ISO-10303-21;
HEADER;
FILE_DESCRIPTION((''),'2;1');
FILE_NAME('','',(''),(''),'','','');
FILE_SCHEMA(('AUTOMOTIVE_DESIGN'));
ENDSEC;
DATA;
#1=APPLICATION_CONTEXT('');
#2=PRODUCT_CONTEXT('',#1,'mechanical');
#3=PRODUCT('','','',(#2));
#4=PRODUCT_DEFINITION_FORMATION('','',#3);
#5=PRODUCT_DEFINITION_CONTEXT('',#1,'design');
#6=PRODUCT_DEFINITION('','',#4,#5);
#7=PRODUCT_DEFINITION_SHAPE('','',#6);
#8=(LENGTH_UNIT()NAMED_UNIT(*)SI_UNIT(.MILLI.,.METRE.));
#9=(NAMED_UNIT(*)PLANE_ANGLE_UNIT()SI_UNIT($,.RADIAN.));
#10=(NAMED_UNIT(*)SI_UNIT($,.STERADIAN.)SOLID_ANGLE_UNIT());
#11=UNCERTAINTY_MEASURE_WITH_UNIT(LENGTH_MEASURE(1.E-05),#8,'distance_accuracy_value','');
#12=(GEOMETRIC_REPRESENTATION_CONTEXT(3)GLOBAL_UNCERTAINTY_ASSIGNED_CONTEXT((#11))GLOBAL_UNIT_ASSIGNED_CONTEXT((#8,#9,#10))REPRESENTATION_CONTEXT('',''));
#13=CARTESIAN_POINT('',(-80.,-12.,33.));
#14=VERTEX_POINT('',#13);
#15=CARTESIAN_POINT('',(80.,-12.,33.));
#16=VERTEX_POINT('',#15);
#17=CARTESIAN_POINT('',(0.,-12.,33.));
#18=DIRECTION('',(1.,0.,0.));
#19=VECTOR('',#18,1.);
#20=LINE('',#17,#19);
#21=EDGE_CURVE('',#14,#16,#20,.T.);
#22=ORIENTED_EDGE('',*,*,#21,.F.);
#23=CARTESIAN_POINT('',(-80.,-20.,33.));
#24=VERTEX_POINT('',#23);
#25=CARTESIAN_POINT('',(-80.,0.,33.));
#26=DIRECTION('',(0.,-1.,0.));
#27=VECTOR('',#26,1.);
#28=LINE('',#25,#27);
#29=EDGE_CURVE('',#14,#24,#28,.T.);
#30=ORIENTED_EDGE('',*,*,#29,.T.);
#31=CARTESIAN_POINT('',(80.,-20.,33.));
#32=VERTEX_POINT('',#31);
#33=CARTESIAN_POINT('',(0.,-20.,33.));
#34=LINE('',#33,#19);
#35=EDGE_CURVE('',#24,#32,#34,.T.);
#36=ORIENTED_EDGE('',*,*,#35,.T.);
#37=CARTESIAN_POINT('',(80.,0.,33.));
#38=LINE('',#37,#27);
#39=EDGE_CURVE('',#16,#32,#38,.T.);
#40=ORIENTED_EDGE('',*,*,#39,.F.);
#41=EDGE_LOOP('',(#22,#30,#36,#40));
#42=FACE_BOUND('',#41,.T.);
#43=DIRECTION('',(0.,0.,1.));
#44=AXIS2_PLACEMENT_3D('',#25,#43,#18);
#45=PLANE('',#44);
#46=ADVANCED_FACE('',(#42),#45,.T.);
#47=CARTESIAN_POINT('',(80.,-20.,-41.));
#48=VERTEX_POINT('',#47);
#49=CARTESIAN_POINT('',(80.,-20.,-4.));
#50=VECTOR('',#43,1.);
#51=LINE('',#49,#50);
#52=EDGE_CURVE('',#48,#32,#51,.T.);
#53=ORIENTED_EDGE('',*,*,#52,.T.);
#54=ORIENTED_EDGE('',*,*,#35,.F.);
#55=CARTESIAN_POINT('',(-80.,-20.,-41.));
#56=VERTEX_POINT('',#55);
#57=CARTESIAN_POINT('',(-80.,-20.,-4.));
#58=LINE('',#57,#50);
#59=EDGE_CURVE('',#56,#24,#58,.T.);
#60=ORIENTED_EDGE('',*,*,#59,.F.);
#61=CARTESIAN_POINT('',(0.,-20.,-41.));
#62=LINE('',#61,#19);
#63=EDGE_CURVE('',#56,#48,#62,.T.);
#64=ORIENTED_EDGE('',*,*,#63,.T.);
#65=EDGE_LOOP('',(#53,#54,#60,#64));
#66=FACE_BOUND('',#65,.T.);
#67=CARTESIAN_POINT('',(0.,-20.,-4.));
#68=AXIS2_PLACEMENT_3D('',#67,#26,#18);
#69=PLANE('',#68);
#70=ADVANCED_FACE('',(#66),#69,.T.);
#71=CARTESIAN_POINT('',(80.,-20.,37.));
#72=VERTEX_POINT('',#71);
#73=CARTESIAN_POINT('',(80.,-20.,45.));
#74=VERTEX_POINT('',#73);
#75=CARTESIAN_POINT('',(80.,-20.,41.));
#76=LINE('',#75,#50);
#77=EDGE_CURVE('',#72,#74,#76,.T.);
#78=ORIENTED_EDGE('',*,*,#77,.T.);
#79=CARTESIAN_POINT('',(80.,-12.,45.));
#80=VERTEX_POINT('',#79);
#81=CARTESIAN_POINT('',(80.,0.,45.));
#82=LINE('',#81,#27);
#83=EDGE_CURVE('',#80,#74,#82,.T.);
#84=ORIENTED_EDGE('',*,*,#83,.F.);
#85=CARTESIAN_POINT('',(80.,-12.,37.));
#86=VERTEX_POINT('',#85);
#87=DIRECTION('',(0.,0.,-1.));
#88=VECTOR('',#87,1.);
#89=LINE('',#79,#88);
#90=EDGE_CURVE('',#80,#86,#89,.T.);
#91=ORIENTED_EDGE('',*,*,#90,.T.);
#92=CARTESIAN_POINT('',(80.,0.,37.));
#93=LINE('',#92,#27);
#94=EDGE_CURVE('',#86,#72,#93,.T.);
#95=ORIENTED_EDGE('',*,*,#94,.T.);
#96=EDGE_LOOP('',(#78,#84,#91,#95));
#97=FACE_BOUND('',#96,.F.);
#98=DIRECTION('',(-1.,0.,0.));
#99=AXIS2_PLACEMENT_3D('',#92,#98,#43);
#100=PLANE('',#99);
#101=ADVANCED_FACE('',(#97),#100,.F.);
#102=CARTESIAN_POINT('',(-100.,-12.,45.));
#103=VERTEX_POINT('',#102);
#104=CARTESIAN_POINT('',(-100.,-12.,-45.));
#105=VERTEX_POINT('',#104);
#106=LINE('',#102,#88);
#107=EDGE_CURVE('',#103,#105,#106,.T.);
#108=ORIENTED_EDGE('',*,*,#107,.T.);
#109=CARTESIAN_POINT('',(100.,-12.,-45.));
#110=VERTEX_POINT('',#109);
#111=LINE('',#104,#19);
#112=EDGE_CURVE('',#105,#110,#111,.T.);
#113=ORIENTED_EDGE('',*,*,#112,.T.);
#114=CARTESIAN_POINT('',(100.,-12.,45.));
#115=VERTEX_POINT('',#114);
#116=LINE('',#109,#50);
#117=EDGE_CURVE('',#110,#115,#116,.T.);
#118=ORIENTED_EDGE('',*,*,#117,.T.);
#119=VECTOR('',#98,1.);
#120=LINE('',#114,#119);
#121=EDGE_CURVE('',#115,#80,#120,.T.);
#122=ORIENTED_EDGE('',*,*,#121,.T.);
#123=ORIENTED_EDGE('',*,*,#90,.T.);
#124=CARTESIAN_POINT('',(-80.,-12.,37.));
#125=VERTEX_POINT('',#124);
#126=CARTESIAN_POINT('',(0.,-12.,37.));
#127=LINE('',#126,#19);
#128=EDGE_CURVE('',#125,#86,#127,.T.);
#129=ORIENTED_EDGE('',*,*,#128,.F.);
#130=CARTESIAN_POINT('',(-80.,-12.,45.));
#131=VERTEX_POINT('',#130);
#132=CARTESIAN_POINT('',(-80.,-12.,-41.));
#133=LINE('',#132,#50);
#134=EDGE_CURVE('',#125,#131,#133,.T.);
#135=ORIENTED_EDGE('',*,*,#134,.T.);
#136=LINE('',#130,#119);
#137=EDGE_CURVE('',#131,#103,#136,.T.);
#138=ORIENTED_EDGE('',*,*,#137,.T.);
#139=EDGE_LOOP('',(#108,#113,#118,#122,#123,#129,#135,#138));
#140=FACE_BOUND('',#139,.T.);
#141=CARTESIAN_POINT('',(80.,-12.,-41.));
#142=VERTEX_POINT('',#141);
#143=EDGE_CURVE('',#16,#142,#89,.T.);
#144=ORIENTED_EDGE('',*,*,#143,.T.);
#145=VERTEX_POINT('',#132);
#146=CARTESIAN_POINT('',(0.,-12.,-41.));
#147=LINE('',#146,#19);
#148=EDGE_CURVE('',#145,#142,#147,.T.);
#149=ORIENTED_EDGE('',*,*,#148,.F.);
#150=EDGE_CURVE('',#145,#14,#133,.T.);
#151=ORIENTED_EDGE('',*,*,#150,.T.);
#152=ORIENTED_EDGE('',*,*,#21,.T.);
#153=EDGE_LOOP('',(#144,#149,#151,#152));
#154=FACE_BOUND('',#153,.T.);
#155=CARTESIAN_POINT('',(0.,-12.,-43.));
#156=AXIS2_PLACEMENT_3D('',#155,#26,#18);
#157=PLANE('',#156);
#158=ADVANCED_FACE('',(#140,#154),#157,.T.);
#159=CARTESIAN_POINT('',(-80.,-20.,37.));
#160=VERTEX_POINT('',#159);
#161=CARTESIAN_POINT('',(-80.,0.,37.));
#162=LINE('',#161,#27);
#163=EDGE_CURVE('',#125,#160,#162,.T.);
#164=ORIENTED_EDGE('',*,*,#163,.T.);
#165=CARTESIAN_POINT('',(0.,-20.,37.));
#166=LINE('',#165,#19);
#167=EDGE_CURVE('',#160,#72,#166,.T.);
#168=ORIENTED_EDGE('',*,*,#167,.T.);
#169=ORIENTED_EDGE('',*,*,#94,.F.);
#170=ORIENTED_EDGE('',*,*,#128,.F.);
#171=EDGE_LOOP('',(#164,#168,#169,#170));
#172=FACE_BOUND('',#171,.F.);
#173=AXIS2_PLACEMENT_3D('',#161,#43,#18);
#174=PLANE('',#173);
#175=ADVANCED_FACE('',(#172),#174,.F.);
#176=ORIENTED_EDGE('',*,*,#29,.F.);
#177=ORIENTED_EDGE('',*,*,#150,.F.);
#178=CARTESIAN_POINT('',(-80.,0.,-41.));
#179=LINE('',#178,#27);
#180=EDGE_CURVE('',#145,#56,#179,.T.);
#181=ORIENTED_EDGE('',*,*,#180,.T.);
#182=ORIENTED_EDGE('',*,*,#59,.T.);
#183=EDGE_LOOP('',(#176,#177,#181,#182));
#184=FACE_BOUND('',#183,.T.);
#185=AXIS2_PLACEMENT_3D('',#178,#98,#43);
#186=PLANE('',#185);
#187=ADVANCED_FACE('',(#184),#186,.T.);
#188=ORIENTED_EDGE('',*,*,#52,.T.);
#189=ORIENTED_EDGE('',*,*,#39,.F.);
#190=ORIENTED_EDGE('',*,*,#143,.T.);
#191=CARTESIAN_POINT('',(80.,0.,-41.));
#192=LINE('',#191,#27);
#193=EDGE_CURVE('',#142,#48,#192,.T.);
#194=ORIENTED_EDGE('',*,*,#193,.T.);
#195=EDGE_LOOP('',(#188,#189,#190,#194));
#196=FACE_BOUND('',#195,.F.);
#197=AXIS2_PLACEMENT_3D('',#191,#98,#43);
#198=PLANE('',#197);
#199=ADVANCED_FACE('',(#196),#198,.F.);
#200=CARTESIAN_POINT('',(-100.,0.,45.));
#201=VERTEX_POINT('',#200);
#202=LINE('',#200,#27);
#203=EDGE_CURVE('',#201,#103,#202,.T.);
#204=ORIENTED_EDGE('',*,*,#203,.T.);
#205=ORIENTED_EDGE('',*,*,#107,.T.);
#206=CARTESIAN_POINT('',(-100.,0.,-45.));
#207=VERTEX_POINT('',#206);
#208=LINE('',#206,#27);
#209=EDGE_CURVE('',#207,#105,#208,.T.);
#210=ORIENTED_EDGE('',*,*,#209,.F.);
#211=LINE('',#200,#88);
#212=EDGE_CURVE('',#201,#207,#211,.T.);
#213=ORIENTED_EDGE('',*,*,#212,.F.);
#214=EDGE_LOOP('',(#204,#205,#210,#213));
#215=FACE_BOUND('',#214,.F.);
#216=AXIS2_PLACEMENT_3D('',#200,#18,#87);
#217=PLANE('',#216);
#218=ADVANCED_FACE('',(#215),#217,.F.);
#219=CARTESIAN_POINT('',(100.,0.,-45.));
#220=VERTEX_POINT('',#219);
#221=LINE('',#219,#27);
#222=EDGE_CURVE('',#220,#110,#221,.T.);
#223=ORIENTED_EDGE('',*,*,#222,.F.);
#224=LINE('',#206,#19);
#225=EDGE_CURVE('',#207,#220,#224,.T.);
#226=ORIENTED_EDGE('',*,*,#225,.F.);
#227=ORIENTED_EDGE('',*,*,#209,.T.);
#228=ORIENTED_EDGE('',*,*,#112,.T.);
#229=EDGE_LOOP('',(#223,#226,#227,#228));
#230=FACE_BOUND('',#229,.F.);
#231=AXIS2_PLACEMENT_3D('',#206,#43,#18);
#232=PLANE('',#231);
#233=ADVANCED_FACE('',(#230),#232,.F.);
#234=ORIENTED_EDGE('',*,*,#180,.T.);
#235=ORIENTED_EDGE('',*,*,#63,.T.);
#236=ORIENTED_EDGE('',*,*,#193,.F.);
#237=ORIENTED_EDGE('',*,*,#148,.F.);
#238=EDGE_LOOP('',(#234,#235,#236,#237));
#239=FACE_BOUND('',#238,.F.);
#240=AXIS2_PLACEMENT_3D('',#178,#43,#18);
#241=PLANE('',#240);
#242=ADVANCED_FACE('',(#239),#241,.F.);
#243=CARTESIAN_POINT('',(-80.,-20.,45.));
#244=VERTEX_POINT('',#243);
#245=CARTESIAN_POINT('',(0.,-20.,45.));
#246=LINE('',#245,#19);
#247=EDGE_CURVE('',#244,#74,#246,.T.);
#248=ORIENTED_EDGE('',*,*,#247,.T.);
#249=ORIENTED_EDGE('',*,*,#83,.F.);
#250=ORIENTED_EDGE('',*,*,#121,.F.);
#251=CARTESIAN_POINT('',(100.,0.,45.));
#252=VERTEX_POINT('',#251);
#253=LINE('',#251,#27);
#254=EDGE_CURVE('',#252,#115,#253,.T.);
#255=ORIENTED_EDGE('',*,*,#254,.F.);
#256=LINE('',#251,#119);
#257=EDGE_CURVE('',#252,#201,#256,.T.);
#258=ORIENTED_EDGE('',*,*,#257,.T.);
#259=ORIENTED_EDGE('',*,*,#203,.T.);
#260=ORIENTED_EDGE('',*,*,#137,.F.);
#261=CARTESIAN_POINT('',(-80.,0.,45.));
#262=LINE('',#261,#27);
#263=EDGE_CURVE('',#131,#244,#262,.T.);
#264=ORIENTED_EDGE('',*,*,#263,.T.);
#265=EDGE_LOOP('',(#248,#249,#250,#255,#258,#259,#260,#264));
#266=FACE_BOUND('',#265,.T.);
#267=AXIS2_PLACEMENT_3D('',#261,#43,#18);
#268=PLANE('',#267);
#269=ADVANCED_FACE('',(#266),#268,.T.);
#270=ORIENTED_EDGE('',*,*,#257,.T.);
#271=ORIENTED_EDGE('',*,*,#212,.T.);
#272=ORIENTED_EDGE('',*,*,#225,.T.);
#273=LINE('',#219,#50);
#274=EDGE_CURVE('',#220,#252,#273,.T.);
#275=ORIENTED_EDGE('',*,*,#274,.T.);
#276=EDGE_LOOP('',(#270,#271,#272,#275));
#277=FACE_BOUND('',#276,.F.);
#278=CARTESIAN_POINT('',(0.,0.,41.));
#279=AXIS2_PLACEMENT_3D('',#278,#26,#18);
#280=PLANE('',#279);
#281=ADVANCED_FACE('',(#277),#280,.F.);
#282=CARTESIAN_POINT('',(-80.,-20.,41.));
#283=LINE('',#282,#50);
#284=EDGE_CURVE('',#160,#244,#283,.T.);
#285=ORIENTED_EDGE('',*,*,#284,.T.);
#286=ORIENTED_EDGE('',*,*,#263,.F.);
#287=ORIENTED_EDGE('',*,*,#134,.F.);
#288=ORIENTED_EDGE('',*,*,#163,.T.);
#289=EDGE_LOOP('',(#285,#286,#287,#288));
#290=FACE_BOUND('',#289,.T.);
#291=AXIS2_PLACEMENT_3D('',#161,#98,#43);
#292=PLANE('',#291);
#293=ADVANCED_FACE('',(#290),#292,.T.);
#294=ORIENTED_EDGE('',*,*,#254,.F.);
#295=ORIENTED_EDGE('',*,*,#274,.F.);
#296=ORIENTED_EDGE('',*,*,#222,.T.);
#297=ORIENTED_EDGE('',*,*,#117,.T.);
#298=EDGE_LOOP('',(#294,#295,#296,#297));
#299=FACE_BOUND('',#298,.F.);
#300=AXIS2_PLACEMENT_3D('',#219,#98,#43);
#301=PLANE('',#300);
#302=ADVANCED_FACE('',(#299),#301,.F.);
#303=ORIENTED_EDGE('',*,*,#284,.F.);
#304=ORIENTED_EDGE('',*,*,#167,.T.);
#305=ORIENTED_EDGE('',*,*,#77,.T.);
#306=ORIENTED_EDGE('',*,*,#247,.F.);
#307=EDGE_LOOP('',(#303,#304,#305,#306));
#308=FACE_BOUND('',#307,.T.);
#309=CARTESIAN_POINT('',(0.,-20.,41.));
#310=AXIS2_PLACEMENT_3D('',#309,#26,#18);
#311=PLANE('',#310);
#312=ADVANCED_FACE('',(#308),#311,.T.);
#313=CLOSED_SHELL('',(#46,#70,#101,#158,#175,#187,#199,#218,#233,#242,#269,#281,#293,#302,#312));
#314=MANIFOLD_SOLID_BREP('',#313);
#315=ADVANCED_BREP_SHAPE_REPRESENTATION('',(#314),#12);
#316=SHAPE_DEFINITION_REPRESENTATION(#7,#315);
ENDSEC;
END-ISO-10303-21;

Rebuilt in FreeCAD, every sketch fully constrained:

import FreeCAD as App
import Part
import Sketcher

V = App.Vector


def add_polygon(sketch, points):
    """Adds a closed chain of lines whose ends are joined by coincident constraints."""
    first, n = sketch.GeometryCount, len(points)
    for a, b in zip(points, points[1:] + points[:1]):
        sketch.addGeometry(Part.LineSegment(App.Vector(*a, 0), App.Vector(*b, 0)), False)
    for i in range(n):
        sketch.addConstraint(Sketcher.Constraint("Coincident", first + i, 2, first + (i + 1) % n, 1))

doc = App.newDocument("Part")
body = doc.addObject("PartDesign::Body", "Body")

sketch1 = body.newObject("Sketcher::SketchObject", "Sketch")
sketch1.AttachmentSupport = (doc.getObject("XZ_Plane"), [""])
sketch1.MapMode = "FlatFace"
add_polygon(sketch1, [(100, -45), (100, 45), (80, 45), (80, 37), (-80, 37), (-80, 45), (-100, 45), (-100, -45)])
add_polygon(sketch1, [(80, 33), (80, -41), (-80, -41), (-80, 33)])
sketch1.addConstraint(Sketcher.Constraint("Vertical", 0))
sketch1.addConstraint(Sketcher.Constraint("Horizontal", 1))
sketch1.addConstraint(Sketcher.Constraint("Vertical", 2))
sketch1.addConstraint(Sketcher.Constraint("Horizontal", 3))
sketch1.addConstraint(Sketcher.Constraint("Vertical", 4))
sketch1.addConstraint(Sketcher.Constraint("Horizontal", 5))
sketch1.addConstraint(Sketcher.Constraint("Vertical", 6))
sketch1.addConstraint(Sketcher.Constraint("Horizontal", 7))
sketch1.addConstraint(Sketcher.Constraint("Vertical", 8))
sketch1.addConstraint(Sketcher.Constraint("Horizontal", 9))
sketch1.addConstraint(Sketcher.Constraint("Vertical", 10))
sketch1.addConstraint(Sketcher.Constraint("Horizontal", 11))
sketch1.addConstraint(Sketcher.Constraint("Symmetric", 0, 2, 6, 2, -1, 1))
sketch1.addConstraint(Sketcher.Constraint("Symmetric", 1, 2, 4, 2, -2))
sketch1.addConstraint(Sketcher.Constraint("Vertical", 2, 2, 8, 2))
sketch1.addConstraint(Sketcher.Constraint("Vertical", 4, 2, 9, 2))
sketch1.addConstraint(Sketcher.Constraint("DistanceX", 1, 2, 1, 1, 20.0))
sketch1.addConstraint(Sketcher.Constraint("DistanceX", 3, 2, 3, 1, 160.0))
sketch1.addConstraint(Sketcher.Constraint("DistanceY", 0, 1, 0, 2, 90.0))
sketch1.addConstraint(Sketcher.Constraint("DistanceY", 2, 2, 2, 1, 8.0))
sketch1.addConstraint(Sketcher.Constraint("DistanceY", 8, 2, 8, 1, 74.0))
sketch1.addConstraint(Sketcher.Constraint("DistanceY", 8, 2, -1, 1, 41.0))
pad1 = body.newObject("PartDesign::Pad", "Pad")
pad1.Profile = sketch1
pad1.Length = 12

sketch2 = body.newObject("Sketcher::SketchObject", "Sketch001")
sketch2.AttachmentSupport = (doc.getObject("XZ_Plane"), [""])
sketch2.MapMode = "FlatFace"
add_polygon(sketch2, [(-80, 45), (-80, 37), (80, 37), (80, 45)])
add_polygon(sketch2, [(-80, 33), (-80, -41), (80, -41), (80, 33)])
sketch2.addConstraint(Sketcher.Constraint("Vertical", 0))
sketch2.addConstraint(Sketcher.Constraint("Horizontal", 1))
sketch2.addConstraint(Sketcher.Constraint("Vertical", 2))
sketch2.addConstraint(Sketcher.Constraint("Horizontal", 3))
sketch2.addConstraint(Sketcher.Constraint("Vertical", 4))
sketch2.addConstraint(Sketcher.Constraint("Horizontal", 5))
sketch2.addConstraint(Sketcher.Constraint("Vertical", 6))
sketch2.addConstraint(Sketcher.Constraint("Horizontal", 7))
sketch2.addConstraint(Sketcher.Constraint("Vertical", 3, 2, 4, 2))
sketch2.addConstraint(Sketcher.Constraint("Vertical", 2, 2, 5, 2))
sketch2.addConstraint(Sketcher.Constraint("DistanceX", 1, 1, 1, 2, 160.0))
sketch2.addConstraint(Sketcher.Constraint("DistanceY", 0, 2, 0, 1, 8.0))
sketch2.addConstraint(Sketcher.Constraint("DistanceY", 4, 2, 4, 1, 74.0))
sketch2.addConstraint(Sketcher.Constraint("DistanceX", 0, 2, -1, 1, 80.0))
sketch2.addConstraint(Sketcher.Constraint("DistanceY", -1, 1, 0, 2, 37.0))
sketch2.addConstraint(Sketcher.Constraint("DistanceY", 4, 2, -1, 1, 41.0))
pad2 = body.newObject("PartDesign::Pad", "Pad001")
pad2.Profile = sketch2
pad2.Length = 20

doc.recompute()
